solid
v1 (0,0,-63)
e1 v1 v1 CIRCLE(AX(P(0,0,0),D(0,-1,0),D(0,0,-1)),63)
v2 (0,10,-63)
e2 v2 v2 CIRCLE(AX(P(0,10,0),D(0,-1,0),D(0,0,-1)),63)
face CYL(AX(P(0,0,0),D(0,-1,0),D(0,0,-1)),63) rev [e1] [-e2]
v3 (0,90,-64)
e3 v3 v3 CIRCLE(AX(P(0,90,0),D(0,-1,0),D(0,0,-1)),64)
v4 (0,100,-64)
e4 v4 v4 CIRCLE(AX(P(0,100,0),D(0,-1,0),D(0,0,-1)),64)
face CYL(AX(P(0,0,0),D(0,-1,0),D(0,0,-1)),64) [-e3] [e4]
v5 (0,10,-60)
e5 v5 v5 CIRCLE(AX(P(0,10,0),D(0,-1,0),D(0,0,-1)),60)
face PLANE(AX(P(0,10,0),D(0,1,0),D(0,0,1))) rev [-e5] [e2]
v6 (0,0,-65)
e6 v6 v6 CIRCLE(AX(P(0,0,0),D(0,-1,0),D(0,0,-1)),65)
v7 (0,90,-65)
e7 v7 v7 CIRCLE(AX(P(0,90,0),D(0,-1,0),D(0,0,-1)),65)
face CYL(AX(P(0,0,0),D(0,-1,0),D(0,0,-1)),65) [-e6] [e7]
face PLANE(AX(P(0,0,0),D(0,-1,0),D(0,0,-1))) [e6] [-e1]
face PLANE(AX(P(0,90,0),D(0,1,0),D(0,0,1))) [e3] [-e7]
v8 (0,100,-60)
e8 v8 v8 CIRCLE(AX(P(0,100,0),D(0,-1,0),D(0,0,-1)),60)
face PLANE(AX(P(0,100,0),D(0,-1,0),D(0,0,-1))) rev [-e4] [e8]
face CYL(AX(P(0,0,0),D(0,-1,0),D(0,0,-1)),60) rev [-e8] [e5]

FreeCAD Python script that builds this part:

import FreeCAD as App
import Part
import Sketcher
from FreeCAD import Vector
Q = App.Units.Quantity


def add_polygon(sketch, points):
    """Adds a closed chain of lines whose ends are joined by coincident constraints."""
    first, n = sketch.GeometryCount, len(points)
    for a, b in zip(points, points[1:] + points[:1]):
        sketch.addGeometry(Part.LineSegment(App.Vector(*a, 0), App.Vector(*b, 0)), False)
    for i in range(n):
        sketch.addConstraint(Sketcher.Constraint("Coincident", first + i, 2, first + (i + 1) % n, 1))

doc = App.newDocument("Part")
body = doc.addObject("PartDesign::Body", "Body")

sketch1 = body.newObject("Sketcher::SketchObject", "Sketch")
sketch1.AttachmentSupport = (doc.getObject("XY_Plane"), [""])
sketch1.MapMode = "FlatFace"
add_polygon(sketch1, [(-65, 0), (-63, 0), (-63, 10), (-60, 10), (-60, 100), (-64, 100), (-64, 90), (-65, 90)])
sketch1.addConstraint([
    Sketcher.Constraint("Horizontal", 0),
    Sketcher.Constraint("Vertical", 1),
    Sketcher.Constraint("Horizontal", 2),
    Sketcher.Constraint("Vertical", 3),
    Sketcher.Constraint("Horizontal", 4),
    Sketcher.Constraint("Vertical", 5),
    Sketcher.Constraint("Horizontal", 6),
    Sketcher.Constraint("Vertical", 7),
    Sketcher.Constraint("PointOnObject", 0, 2, -1),
    Sketcher.Constraint("Equal", 1, 5),
    Sketcher.Constraint("DistanceX", 0, 1, 0, 2, Q("2 mm")),
    Sketcher.Constraint("DistanceX", 2, 1, 2, 2, Q("3 mm")),
    Sketcher.Constraint("DistanceX", 4, 2, 4, 1, Q("4 mm")),
    Sketcher.Constraint("DistanceY", 1, 1, 1, 2, Q("10 mm")),
    Sketcher.Constraint("DistanceY", 3, 1, 3, 2, Q("90 mm")),
    Sketcher.Constraint("DistanceX", 0, 2, -1, 1, Q("63 mm")),
])
revolution = body.newObject("PartDesign::Revolution", "Revolution")
revolution.Profile = sketch1
revolution.ReferenceAxis = (sketch1, ["V_Axis"])
revolution.Angle = 360

doc.recompute()
